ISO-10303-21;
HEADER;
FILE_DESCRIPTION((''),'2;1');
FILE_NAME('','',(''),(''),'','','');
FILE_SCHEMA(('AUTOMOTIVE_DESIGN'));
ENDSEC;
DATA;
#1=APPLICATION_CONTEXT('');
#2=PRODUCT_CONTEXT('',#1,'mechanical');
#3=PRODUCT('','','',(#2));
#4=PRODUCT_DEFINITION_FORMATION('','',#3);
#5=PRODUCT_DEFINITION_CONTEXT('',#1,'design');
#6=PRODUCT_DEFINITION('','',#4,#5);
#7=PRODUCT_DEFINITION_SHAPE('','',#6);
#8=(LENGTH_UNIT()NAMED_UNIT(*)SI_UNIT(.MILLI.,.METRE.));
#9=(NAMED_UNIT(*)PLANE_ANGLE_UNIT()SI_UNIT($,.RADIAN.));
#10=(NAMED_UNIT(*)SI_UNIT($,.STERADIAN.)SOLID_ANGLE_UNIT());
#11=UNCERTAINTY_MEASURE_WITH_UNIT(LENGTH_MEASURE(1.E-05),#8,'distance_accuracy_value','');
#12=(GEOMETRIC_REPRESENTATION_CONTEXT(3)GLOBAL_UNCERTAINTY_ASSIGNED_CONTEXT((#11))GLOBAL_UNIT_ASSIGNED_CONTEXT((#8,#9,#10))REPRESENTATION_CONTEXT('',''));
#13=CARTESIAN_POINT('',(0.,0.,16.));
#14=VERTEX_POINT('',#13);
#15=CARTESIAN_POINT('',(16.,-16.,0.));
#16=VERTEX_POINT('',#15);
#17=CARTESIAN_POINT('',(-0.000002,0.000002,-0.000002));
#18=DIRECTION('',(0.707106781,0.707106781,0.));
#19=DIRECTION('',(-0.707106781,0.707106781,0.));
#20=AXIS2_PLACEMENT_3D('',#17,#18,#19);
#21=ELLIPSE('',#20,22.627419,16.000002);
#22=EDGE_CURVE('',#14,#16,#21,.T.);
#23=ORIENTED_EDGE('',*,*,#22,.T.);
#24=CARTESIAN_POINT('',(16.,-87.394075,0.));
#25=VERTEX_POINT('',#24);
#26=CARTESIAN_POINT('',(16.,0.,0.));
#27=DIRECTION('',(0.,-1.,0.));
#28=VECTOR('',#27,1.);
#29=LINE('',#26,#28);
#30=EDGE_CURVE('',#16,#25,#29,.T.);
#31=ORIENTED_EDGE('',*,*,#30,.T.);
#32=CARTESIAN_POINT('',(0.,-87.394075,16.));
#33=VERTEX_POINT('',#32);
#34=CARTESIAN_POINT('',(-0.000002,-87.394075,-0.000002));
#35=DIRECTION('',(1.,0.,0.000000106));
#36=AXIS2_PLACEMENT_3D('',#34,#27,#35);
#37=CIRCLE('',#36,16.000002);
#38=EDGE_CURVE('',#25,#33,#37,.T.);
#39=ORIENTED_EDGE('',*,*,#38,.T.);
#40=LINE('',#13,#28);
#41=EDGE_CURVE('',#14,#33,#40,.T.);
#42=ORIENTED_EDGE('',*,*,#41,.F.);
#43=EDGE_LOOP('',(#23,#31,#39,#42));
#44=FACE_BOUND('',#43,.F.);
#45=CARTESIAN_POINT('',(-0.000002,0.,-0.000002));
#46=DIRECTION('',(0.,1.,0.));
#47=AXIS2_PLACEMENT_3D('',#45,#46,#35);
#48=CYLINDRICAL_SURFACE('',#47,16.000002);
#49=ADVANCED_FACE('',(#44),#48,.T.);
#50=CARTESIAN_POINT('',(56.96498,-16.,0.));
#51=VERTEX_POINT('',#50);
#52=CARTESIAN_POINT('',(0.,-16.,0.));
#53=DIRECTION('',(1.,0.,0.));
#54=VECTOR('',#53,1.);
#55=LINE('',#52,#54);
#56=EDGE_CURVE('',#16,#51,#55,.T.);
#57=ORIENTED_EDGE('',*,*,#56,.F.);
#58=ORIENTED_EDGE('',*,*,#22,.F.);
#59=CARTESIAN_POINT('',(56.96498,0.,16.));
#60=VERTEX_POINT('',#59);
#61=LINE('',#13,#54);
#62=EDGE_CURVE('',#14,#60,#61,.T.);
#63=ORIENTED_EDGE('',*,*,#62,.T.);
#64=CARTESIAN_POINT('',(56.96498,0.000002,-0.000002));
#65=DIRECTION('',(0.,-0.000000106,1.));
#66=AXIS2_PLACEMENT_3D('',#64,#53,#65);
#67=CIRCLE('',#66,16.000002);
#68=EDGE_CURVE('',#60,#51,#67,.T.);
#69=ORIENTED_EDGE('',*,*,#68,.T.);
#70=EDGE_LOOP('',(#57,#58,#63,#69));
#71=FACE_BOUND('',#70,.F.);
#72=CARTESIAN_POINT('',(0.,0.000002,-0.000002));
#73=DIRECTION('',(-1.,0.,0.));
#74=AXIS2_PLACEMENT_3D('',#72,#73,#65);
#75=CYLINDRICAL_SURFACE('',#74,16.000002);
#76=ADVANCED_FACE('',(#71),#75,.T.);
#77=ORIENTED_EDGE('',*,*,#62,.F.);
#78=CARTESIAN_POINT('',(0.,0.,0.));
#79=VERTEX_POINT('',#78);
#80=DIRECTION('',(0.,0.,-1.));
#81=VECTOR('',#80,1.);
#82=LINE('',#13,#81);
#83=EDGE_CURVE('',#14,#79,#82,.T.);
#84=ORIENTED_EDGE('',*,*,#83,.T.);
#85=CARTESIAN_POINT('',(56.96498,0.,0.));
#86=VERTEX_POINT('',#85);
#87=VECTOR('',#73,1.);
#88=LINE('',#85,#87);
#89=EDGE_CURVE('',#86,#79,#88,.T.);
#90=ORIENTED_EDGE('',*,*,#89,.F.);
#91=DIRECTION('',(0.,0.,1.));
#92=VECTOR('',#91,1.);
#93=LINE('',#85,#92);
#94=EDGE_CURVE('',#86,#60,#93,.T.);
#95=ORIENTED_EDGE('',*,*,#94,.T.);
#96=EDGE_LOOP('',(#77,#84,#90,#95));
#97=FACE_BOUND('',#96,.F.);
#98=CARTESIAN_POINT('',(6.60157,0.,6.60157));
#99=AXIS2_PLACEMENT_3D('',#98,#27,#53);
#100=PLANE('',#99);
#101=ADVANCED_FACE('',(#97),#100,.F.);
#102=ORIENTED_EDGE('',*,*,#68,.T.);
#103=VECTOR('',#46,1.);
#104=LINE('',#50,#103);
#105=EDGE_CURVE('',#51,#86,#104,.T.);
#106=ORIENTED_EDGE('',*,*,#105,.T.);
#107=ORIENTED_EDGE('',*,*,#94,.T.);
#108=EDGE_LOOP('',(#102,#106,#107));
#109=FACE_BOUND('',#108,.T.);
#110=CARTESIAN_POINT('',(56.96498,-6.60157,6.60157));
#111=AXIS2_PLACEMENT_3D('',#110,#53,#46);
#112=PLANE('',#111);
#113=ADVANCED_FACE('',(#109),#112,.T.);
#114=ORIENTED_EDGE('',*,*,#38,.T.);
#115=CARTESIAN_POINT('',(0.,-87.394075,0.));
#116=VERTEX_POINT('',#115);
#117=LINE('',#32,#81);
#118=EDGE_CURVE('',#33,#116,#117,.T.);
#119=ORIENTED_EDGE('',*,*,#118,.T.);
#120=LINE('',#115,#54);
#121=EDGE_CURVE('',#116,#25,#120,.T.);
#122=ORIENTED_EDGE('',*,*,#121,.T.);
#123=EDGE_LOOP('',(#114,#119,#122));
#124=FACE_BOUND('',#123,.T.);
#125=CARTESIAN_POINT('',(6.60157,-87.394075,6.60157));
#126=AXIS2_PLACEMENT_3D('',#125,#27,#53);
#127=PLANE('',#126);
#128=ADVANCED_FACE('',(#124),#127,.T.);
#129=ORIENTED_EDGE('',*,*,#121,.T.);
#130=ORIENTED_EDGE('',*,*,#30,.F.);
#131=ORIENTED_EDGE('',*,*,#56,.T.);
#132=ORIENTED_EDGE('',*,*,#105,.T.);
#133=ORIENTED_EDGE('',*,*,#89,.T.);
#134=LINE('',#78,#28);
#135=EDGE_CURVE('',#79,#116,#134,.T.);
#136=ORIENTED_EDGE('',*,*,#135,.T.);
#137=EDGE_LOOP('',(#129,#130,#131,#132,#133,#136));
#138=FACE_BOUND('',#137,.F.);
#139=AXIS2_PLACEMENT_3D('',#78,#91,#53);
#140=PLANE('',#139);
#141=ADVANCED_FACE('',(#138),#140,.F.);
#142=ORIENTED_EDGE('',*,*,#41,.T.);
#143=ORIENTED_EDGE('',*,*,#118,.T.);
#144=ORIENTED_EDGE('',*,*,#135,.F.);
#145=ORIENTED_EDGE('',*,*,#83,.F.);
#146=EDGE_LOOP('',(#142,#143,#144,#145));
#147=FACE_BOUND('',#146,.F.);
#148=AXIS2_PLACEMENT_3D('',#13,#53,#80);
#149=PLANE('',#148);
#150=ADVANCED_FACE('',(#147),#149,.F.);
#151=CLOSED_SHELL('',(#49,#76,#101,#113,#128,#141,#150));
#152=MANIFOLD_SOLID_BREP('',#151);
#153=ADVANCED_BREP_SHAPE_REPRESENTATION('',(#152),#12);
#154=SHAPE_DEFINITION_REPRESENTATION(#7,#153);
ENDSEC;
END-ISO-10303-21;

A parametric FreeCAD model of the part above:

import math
import FreeCAD as App
import Part
import Sketcher

doc = App.newDocument("Part")
body = doc.addObject("PartDesign::Body", "Body")

# Sketch on XZ plane
sketch1 = body.newObject("Sketcher::SketchObject", "Sketch")
sketch1.AttachmentSupport = (doc.getObject("XZ_Plane"), [""])
sketch1.MapMode = "FlatFace"
sketch1.addGeometry([
    Part.ArcOfCircle(Part.Circle(App.Vector(0, 0, 0), App.Vector(0, 0, 1), 16), math.radians(0), math.radians(90)),
    Part.LineSegment(App.Vector(0, 16, 0), App.Vector(0, 0, 0)),
    Part.LineSegment(App.Vector(0, 0, 0), App.Vector(16, 0, 0)),
], False)
sketch1.addConstraint([
    Sketcher.Constraint("Coincident", 0, 2, 1, 1),
    Sketcher.Constraint("Coincident", 1, 2, 2, 1),
    Sketcher.Constraint("Coincident", 2, 2, 0, 1),
    Sketcher.Constraint("Vertical", 1),
    Sketcher.Constraint("Horizontal", 2),
    Sketcher.Constraint("Coincident", 0, 3, -1, 1),
    Sketcher.Constraint("Coincident", 1, 2, -1, 1),
    Sketcher.Constraint("Radius", 0, 16.000002),
])
pad1 = body.newObject("PartDesign::Pad", "Pad")
pad1.Profile = sketch1
pad1.Length = 87.394075

# Sketch on YZ plane
sketch2 = body.newObject("Sketcher::SketchObject", "Sketch001")
sketch2.AttachmentSupport = (doc.getObject("YZ_Plane"), [""])
sketch2.MapMode = "FlatFace"
sketch2.addGeometry([
    Part.LineSegment(App.Vector(-16, 0, 0), App.Vector(0, 0, 0)),
    Part.LineSegment(App.Vector(0, 0, 0), App.Vector(0, 16, 0)),
    Part.ArcOfCircle(Part.Circle(App.Vector(0, 0, 0), App.Vector(0, 0, 1), 16), math.radians(90), math.radians(180)),
], False)
sketch2.addConstraint([
    Sketcher.Constraint("Coincident", 0, 2, 1, 1),
    Sketcher.Constraint("Coincident", 1, 2, 2, 1),
    Sketcher.Constraint("Coincident", 2, 2, 0, 1),
    Sketcher.Constraint("Horizontal", 0),
    Sketcher.Constraint("Vertical", 1),
    Sketcher.Constraint("Coincident", 2, 3, -1, 1),
    Sketcher.Constraint("Coincident", 0, 2, -1, 1),
    Sketcher.Constraint("Radius", 2, 16.000002),
])
pad2 = body.newObject("PartDesign::Pad", "Pad001")
pad2.Profile = sketch2
pad2.Length = 56.96498

doc.recompute()
